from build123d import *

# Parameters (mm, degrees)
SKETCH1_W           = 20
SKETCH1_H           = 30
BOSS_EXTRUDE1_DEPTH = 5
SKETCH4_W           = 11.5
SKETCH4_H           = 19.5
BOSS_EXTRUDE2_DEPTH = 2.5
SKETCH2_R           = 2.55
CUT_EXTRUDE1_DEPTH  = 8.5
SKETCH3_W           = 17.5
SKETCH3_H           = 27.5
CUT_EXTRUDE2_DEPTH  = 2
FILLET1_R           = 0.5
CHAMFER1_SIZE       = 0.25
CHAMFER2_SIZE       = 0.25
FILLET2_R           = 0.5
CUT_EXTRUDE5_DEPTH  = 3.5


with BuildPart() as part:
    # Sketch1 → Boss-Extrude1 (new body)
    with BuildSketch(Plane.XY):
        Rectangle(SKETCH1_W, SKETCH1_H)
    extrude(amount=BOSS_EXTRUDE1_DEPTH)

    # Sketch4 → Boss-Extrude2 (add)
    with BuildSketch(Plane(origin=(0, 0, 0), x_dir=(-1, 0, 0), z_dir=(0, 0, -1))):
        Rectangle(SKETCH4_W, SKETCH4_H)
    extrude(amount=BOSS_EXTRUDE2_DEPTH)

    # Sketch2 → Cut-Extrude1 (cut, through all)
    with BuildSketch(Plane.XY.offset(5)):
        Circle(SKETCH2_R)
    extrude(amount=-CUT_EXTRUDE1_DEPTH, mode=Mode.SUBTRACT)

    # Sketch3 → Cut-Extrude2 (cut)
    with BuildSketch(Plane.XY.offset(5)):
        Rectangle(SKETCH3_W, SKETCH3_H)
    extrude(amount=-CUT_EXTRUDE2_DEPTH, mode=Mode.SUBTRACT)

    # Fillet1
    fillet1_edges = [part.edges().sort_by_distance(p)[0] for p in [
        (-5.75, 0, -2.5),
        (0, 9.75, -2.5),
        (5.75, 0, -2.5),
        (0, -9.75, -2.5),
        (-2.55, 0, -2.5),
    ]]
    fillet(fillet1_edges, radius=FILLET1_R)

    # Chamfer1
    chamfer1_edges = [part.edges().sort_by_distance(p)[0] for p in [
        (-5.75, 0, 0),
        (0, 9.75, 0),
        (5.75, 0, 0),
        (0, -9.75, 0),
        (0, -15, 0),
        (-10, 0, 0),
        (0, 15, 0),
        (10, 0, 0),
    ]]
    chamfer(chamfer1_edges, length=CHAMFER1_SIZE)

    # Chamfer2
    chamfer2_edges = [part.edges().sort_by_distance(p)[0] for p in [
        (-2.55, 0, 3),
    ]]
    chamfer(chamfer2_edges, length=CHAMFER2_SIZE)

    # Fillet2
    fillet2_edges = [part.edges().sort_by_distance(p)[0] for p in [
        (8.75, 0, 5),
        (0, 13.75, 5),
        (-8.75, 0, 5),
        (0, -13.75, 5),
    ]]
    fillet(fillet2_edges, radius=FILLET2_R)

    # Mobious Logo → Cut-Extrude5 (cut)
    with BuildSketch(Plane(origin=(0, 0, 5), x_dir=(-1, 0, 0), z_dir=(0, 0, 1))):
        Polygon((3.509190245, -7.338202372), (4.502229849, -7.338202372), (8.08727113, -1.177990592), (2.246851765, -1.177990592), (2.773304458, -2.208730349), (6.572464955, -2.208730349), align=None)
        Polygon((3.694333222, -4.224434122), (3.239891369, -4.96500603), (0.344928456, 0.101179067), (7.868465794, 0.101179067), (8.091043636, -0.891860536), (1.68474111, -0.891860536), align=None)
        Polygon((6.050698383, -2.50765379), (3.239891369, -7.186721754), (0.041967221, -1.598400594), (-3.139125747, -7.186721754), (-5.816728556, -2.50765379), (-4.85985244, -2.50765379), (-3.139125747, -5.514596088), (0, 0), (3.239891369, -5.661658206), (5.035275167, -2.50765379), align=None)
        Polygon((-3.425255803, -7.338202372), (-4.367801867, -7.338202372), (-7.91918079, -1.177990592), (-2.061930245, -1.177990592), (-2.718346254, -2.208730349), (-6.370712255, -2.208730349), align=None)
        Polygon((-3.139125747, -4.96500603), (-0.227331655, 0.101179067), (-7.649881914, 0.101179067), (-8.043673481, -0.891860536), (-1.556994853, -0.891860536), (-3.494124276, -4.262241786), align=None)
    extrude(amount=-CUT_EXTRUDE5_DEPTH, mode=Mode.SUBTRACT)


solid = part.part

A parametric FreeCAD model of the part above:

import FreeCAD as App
import Part
import Sketcher
from FreeCAD import Vector
Q = App.Units.Quantity


def edges_at(feature, points):
    """Names of the edges that pass closest to the given points."""
    edges = feature.Shape.Edges
    near = lambda p: min(range(len(edges)), key=lambda i: edges[i].distToShape(Part.Vertex(*p))[0])
    return sorted({f"Edge{near(p) + 1}" for p in points})

doc = App.newDocument("Part")
body = doc.addObject("PartDesign::Body", "Body")

# Sketch on XY plane
sketch1 = body.newObject("Sketcher::SketchObject", "Sketch")
sketch1.AttachmentSupport = (doc.getObject("XY_Plane"), [""])
sketch1.MapMode = "FlatFace"
sketch1.addGeometry([
    Part.LineSegment(Vector(-10, 15, 0), Vector(-10, -15, 0)),
    Part.LineSegment(Vector(-10, -15, 0), Vector(10, -15, 0)),
    Part.LineSegment(Vector(10, -15, 0), Vector(10, 15, 0)),
    Part.LineSegment(Vector(10, 15, 0), Vector(-10, 15, 0)),
], False)
sketch1.addConstraint([
    Sketcher.Constraint("Coincident", 0, 2, 1, 1),
    Sketcher.Constraint("Coincident", 1, 2, 2, 1),
    Sketcher.Constraint("Coincident", 2, 2, 3, 1),
    Sketcher.Constraint("Coincident", 3, 2, 0, 1),
    Sketcher.Constraint("Vertical", 0),
    Sketcher.Constraint("Horizontal", 1),
    Sketcher.Constraint("Vertical", 2),
    Sketcher.Constraint("Horizontal", 3),
    Sketcher.Constraint("Symmetric", 0, 2, 2, 2, -1, 1),
    Sketcher.Constraint("DistanceX", 1, 1, 1, 2, Q("20 mm")),
    Sketcher.Constraint("DistanceY", 0, 2, 0, 1, Q("30 mm")),
])
pad1 = body.newObject("PartDesign::Pad", "Pad")
pad1.Profile = sketch1
pad1.Length = 5

# Sketch on XY plane
sketch2 = body.newObject("Sketcher::SketchObject", "Sketch001")
sketch2.AttachmentSupport = (doc.getObject("XY_Plane"), [""])
sketch2.MapMode = "FlatFace"
sketch2.addGeometry([
    Part.LineSegment(Vector(6, 10, 0), Vector(6, -10, 0)),
    Part.LineSegment(Vector(6, -10, 0), Vector(-6, -10, 0)),
    Part.LineSegment(Vector(-6, -10, 0), Vector(-6, 10, 0)),
    Part.LineSegment(Vector(-6, 10, 0), Vector(6, 10, 0)),
], False)
sketch2.addConstraint([
    Sketcher.Constraint("Coincident", 0, 2, 1, 1),
    Sketcher.Constraint("Coincident", 1, 2, 2, 1),
    Sketcher.Constraint("Coincident", 2, 2, 3, 1),
    Sketcher.Constraint("Coincident", 3, 2, 0, 1),
    Sketcher.Constraint("Vertical", 0),
    Sketcher.Constraint("Horizontal", 1),
    Sketcher.Constraint("Vertical", 2),
    Sketcher.Constraint("Horizontal", 3),
    Sketcher.Constraint("Symmetric", 0, 2, 2, 2, -1, 1),
    Sketcher.Constraint("DistanceX", 1, 2, 1, 1, Q("11.5 mm")),
    Sketcher.Constraint("DistanceY", 0, 2, 0, 1, Q("19.5 mm")),
])
pad2 = body.newObject("PartDesign::Pad", "Pad001")
pad2.Profile = sketch2
pad2.Length = 2.5
pad2.Reversed = True

# Sketch on XY plane
sketch3 = body.newObject("Sketcher::SketchObject", "Sketch002")
sketch3.AttachmentSupport = (doc.getObject("XY_Plane"), [""])
sketch3.MapMode = "FlatFace"
sketch3.AttachmentOffset = App.Placement(Vector(0, 0, 5), App.Rotation())
sketch3.addGeometry(Part.Circle(Vector(0, 0, 0), Vector(0, 0, 1), 2.5), False)
sketch3.addConstraint([
    Sketcher.Constraint("Coincident", 0, 3, -1, 1),
    Sketcher.Constraint("Diameter", 0, Q("5.1 mm")),
])
pocket1 = body.newObject("PartDesign::Pocket", "Pocket")
pocket1.Profile = sketch3
pocket1.Type = "ThroughAll"

# Sketch on XY plane
sketch4 = body.newObject("Sketcher::SketchObject", "Sketch003")
sketch4.AttachmentSupport = (doc.getObject("XY_Plane"), [""])
sketch4.MapMode = "FlatFace"
sketch4.AttachmentOffset = App.Placement(Vector(0, 0, 5), App.Rotation())
sketch4.addGeometry([
    Part.LineSegment(Vector(-9, 14, 0), Vector(-9, -14, 0)),
    Part.LineSegment(Vector(-9, -14, 0), Vector(9, -14, 0)),
    Part.LineSegment(Vector(9, -14, 0), Vector(9, 14, 0)),
    Part.LineSegment(Vector(9, 14, 0), Vector(-9, 14, 0)),
], False)
sketch4.addConstraint([
    Sketcher.Constraint("Coincident", 0, 2, 1, 1),
    Sketcher.Constraint("Coincident", 1, 2, 2, 1),
    Sketcher.Constraint("Coincident", 2, 2, 3, 1),
    Sketcher.Constraint("Coincident", 3, 2, 0, 1),
    Sketcher.Constraint("Vertical", 0),
    Sketcher.Constraint("Horizontal", 1),
    Sketcher.Constraint("Vertical", 2),
    Sketcher.Constraint("Horizontal", 3),
    Sketcher.Constraint("Symmetric", 0, 2, 2, 2, -1, 1),
    Sketcher.Constraint("DistanceX", 1, 1, 1, 2, Q("17.5 mm")),
    Sketcher.Constraint("DistanceY", 0, 2, 0, 1, Q("27.5 mm")),
])
pocket2 = body.newObject("PartDesign::Pocket", "Pocket001")
pocket2.Profile = sketch4
pocket2.Length = 2
doc.recompute()

fillet = body.newObject("PartDesign::Fillet", "Fillet")
fillet.Base = (pocket2, edges_at(pocket2, [
    (-5.75, 0, -2.5),
    (0, 9.75, -2.5),
    (5.75, 0, -2.5),
    (0, -9.75, -2.5),
    (-2.55, 0, -2.5),
]))
fillet.Radius = 0.5
doc.recompute()

chamfer = body.newObject("PartDesign::Chamfer", "Chamfer")
chamfer.Base = (fillet, edges_at(fillet, [
    (-5.75, 0, 0),
    (0, 9.75, 0),
    (5.75, 0, 0),
    (0, -9.75, 0),
    (0, -15, 0),
    (-10, 0, 0),
    (0, 15, 0),
    (10, 0, 0),
]))
chamfer.Size = 0.25
doc.recompute()

chamfer2 = body.newObject("PartDesign::Chamfer", "Chamfer001")
chamfer2.Base = (chamfer, edges_at(chamfer, [(-2.55, 0, 3)]))
chamfer2.Size = 0.25
doc.recompute()

fillet2 = body.newObject("PartDesign::Fillet", "Fillet001")
fillet2.Base = (chamfer2, edges_at(chamfer2, [
    (8.75, 0, 5),
    (0, 13.75, 5),
    (-8.75, 0, 5),
    (0, -13.75, 5),
]))
fillet2.Radius = 0.5

# Sketch on XY plane
sketch5 = body.newObject("Sketcher::SketchObject", "Sketch004")
sketch5.AttachmentSupport = (doc.getObject("XY_Plane"), [""])
sketch5.MapMode = "FlatFace"
sketch5.AttachmentOffset = App.Placement(Vector(0, 0, 5), App.Rotation())
sketch5.addGeometry([
    Part.LineSegment(Vector(-3.5, 7.3, 0), Vector(-4.5, 7.3, 0)),  # 0
    Part.LineSegment(Vector(-4.5, 7.3, 0), Vector(-8.1, 1.2, 0)),  # 1
    Part.LineSegment(Vector(-8.1, 1.2, 0), Vector(-2.2, 1.2, 0)),  # 2
    Part.LineSegment(Vector(-2.2, 1.2, 0), Vector(-2.8, 2.2, 0)),  # 3
    Part.LineSegment(Vector(-2.8, 2.2, 0), Vector(-6.6, 2.2, 0)),  # 4
    Part.LineSegment(Vector(-6.6, 2.2, 0), Vector(-3.5, 7.3, 0)),  # 5
    Part.LineSegment(Vector(-3.2, 5, 0), Vector(-3.7, 4.2, 0)),  # 6
    Part.LineSegment(Vector(-3.7, 4.2, 0), Vector(-1.7, 0.9, 0)),  # 7
    Part.LineSegment(Vector(-1.7, 0.9, 0), Vector(-8.1, 0.9, 0)),  # 8
    Part.LineSegment(Vector(-8.1, 0.9, 0), Vector(-7.9, -0.1, 0)),  # 9
    Part.LineSegment(Vector(-7.9, -0.1, 0), Vector(-0.3, -0.1, 0)),  # 10
    Part.LineSegment(Vector(-0.3, -0.1, 0), Vector(-3.2, 5, 0)),  # 11
    Part.LineSegment(Vector(-3.2, 7.2, 0), Vector(-6.1, 2.5, 0)),  # 12
    Part.LineSegment(Vector(-6.1, 2.5, 0), Vector(-5, 2.5, 0)),  # 13
    Part.LineSegment(Vector(-5, 2.5, 0), Vector(-3.2, 5.7, 0)),  # 14
    Part.LineSegment(Vector(-3.2, 5.7, 0), Vector(0, 0, 0)),  # 15
    Part.LineSegment(Vector(0, 0, 0), Vector(3.1, 5.5, 0)),  # 16
    Part.LineSegment(Vector(3.1, 5.5, 0), Vector(4.9, 2.5, 0)),  # 17
    Part.LineSegment(Vector(4.9, 2.5, 0), Vector(5.8, 2.5, 0)),  # 18
    Part.LineSegment(Vector(5.8, 2.5, 0), Vector(3.1, 7.2, 0)),  # 19
    Part.LineSegment(Vector(3.1, 7.2, 0), Vector(0, 1.6, 0)),  # 20
    Part.LineSegment(Vector(0, 1.6, 0), Vector(-3.2, 7.2, 0)),  # 21
    Part.LineSegment(Vector(4.4, 7.3, 0), Vector(3.4, 7.3, 0)),  # 22
    Part.LineSegment(Vector(3.4, 7.3, 0), Vector(6.4, 2.2, 0)),  # 23
    Part.LineSegment(Vector(6.4, 2.2, 0), Vector(2.7, 2.2, 0)),  # 24
    Part.LineSegment(Vector(2.7, 2.2, 0), Vector(2.1, 1.2, 0)),  # 25
    Part.LineSegment(Vector(2.1, 1.2, 0), Vector(7.9, 1.2, 0)),  # 26
    Part.LineSegment(Vector(7.9, 1.2, 0), Vector(4.4, 7.3, 0)),  # 27
    Part.LineSegment(Vector(3.1, 5, 0), Vector(0.2, -0.1, 0)),  # 28
    Part.LineSegment(Vector(0.2, -0.1, 0), Vector(7.6, -0.1, 0)),  # 29
    Part.LineSegment(Vector(7.6, -0.1, 0), Vector(8, 0.9, 0)),  # 30
    Part.LineSegment(Vector(8, 0.9, 0), Vector(1.6, 0.9, 0)),  # 31
    Part.LineSegment(Vector(1.6, 0.9, 0), Vector(3.5, 4.3, 0)),  # 32
    Part.LineSegment(Vector(3.5, 4.3, 0), Vector(3.1, 5, 0)),  # 33
], False)
sketch5.addConstraint([
    Sketcher.Constraint("Coincident", 0, 2, 1, 1),
    Sketcher.Constraint("Coincident", 1, 2, 2, 1),
    Sketcher.Constraint("Coincident", 2, 2, 3, 1),
    Sketcher.Constraint("Coincident", 3, 2, 4, 1),
    Sketcher.Constraint("Coincident", 4, 2, 5, 1),
    Sketcher.Constraint("Coincident", 5, 2, 0, 1),
    Sketcher.Constraint("Coincident", 6, 2, 7, 1),
    Sketcher.Constraint("Coincident", 7, 2, 8, 1),
    Sketcher.Constraint("Coincident", 8, 2, 9, 1),
    Sketcher.Constraint("Coincident", 9, 2, 10, 1),
    Sketcher.Constraint("Coincident", 10, 2, 11, 1),
    Sketcher.Constraint("Coincident", 11, 2, 6, 1),
    Sketcher.Constraint("Coincident", 12, 2, 13, 1),
    Sketcher.Constraint("Coincident", 13, 2, 14, 1),
    Sketcher.Constraint("Coincident", 14, 2, 15, 1),
    Sketcher.Constraint("Coincident", 15, 2, 16, 1),
    Sketcher.Constraint("Coincident", 16, 2, 17, 1),
    Sketcher.Constraint("Coincident", 17, 2, 18, 1),
    Sketcher.Constraint("Coincident", 18, 2, 19, 1),
    Sketcher.Constraint("Coincident", 19, 2, 20, 1),
    Sketcher.Constraint("Coincident", 20, 2, 21, 1),
    Sketcher.Constraint("Coincident", 21, 2, 12, 1),
    Sketcher.Constraint("Coincident", 22, 2, 23, 1),
    Sketcher.Constraint("Coincident", 23, 2, 24, 1),
    Sketcher.Constraint("Coincident", 24, 2, 25, 1),
    Sketcher.Constraint("Coincident", 25, 2, 26, 1),
    Sketcher.Constraint("Coincident", 26, 2, 27, 1),
    Sketcher.Constraint("Coincident", 27, 2, 22, 1),
    Sketcher.Constraint("Coincident", 28, 2, 29, 1),
    Sketcher.Constraint("Coincident", 29, 2, 30, 1),
    Sketcher.Constraint("Coincident", 30, 2, 31, 1),
    Sketcher.Constraint("Coincident", 31, 2, 32, 1),
    Sketcher.Constraint("Coincident", 32, 2, 33, 1),
    Sketcher.Constraint("Coincident", 33, 2, 28, 1),
    Sketcher.Constraint("Horizontal", 0),
    Sketcher.Constraint("Horizontal", 2),
    Sketcher.Constraint("Horizontal", 4),
    Sketcher.Constraint("Horizontal", 8),
    Sketcher.Constraint("Horizontal", 10),
    Sketcher.Constraint("Horizontal", 13),
    Sketcher.Constraint("Horizontal", 18),
    Sketcher.Constraint("Horizontal", 22),
    Sketcher.Constraint("Horizontal", 24),
    Sketcher.Constraint("Horizontal", 26),
    Sketcher.Constraint("Horizontal", 29),
    Sketcher.Constraint("Horizontal", 31),
    Sketcher.Constraint("Coincident", 15, 2, -1, 1),
    Sketcher.Constraint("Parallel", 14, 16),
    Sketcher.Constraint("Parallel", 15, 17),
    Sketcher.Constraint("Parallel", 17, 19),
    Sketcher.Constraint("Parallel", 16, 20),
    Sketcher.Constraint("Parallel", 19, 21),
    Sketcher.Constraint("Parallel", 28, 32),
    Sketcher.Constraint("Horizontal", 13, 2, 17, 2),
    Sketcher.Constraint("Horizontal", 19, 2, 21, 2),
    Sketcher.Constraint("Horizontal", 5, 2, 22, 2),
    Sketcher.Constraint("Horizontal", 4, 2, 23, 2),
    Sketcher.Constraint("Horizontal", 2, 2, 25, 2),
    Sketcher.Constraint("Horizontal", 10, 2, 28, 2),
    Sketcher.Constraint("Horizontal", 8, 2, 30, 2),
    Sketcher.Constraint("Horizontal", 11, 2, 33, 2),
    Sketcher.Constraint("Vertical", 11, 2, 14, 2),
    Sketcher.Constraint("Vertical", 16, 2, 19, 2),
    Sketcher.Constraint("Vertical", 14, 2, 21, 2),
    Sketcher.Constraint("Vertical", 19, 2, 33, 2),
    Sketcher.Constraint("DistanceX", 9, 2, 4, 2, Q("1.296001 mm")),
    Sketcher.Constraint("DistanceX", 16, 2, 32, 2, Q("0.354999 mm")),
    Sketcher.Constraint("Distance", 3, Q("1.157401 mm")),
    Sketcher.Constraint("DistanceX", 0, 2, 0, 1, Q("0.99304 mm")),
    Sketcher.Constraint("DistanceX", 2, 1, 2, 2, Q("5.840419 mm")),
    Sketcher.Constraint("DistanceX", 4, 2, 4, 1, Q("3.79916 mm")),
    Sketcher.Constraint("DistanceX", 26, 1, 26, 2, Q("5.857251 mm")),
    Sketcher.Constraint("DistanceX", 29, 1, 29, 2, Q("7.42255 mm")),
    Sketcher.Constraint("DistanceX", 31, 2, 31, 1, Q("6.486679 mm")),
    Sketcher.Constraint("DistanceX", 12, 2, -1, 1, Q("6.050698 mm")),
    Sketcher.Constraint("DistanceY", -1, 1, 20, 2, Q("1.598401 mm")),
    Sketcher.Constraint("DistanceX", -1, 1, 27, 2, Q("4.367802 mm")),
    Sketcher.Constraint("DistanceX", 5, 2, 11, 2, Q("0.269299 mm")),
    Sketcher.Constraint("DistanceX", 20, 2, 28, 2, Q("0.269299 mm")),
    Sketcher.Constraint("DistanceX", 28, 2, 25, 2, Q("1.834599 mm")),
    Sketcher.Constraint("Distance", 5, Q("5.974541 mm")),
    Sketcher.Constraint("Distance", 9, Q("1.017678 mm")),
    Sketcher.Constraint("Distance", 16, Q("6.345461 mm")),
    Sketcher.Constraint("Distance", 25, Q("1.222009 mm")),
    Sketcher.Constraint("Distance", 27, Q("7.110591 mm")),
    Sketcher.Constraint("Distance", 30, Q("1.068269 mm")),
    Sketcher.Constraint("Distance", 33, Q("0.787338 mm")),
    Sketcher.Constraint("DistanceX", 8, 2, 8, 1, Q("6.406303 mm")),
    Sketcher.Constraint("DistanceX", 10, 1, 10, 2, Q("7.523537 mm")),
    Sketcher.Constraint("DistanceX", 13, 1, 13, 2, Q("1.015423 mm")),
    Sketcher.Constraint("DistanceX", 18, 1, 18, 2, Q("0.956876 mm")),
    Sketcher.Constraint("DistanceX", 22, 2, 22, 1, Q("0.942546 mm")),
    Sketcher.Constraint("DistanceX", 24, 2, 24, 1, Q("3.652366 mm")),
    Sketcher.Constraint("DistanceX", 0, 2, -1, 1, Q("4.50223 mm")),
    Sketcher.Constraint("DistanceX", 1, 2, -1, 1, Q("8.087271 mm")),
    Sketcher.Constraint("DistanceY", -1, 1, 1, 2, Q("1.177991 mm")),
    Sketcher.Constraint("DistanceY", -1, 1, 3, 2, Q("2.20873 mm")),
    Sketcher.Constraint("DistanceX", 7, 2, -1, 1, Q("1.684741 mm")),
    Sketcher.Constraint("DistanceY", -1, 1, 7, 2, Q("0.891861 mm")),
    Sketcher.Constraint("DistanceX", 6, 2, 3, 2, Q("0.921029 mm")),
    Sketcher.Constraint("DistanceY", 6, 2, 5, 2, Q("3.113768 mm")),
])
pocket3 = body.newObject("PartDesign::Pocket", "Pocket002")
pocket3.Profile = sketch5
pocket3.Length = 3.5

doc.recompute()
